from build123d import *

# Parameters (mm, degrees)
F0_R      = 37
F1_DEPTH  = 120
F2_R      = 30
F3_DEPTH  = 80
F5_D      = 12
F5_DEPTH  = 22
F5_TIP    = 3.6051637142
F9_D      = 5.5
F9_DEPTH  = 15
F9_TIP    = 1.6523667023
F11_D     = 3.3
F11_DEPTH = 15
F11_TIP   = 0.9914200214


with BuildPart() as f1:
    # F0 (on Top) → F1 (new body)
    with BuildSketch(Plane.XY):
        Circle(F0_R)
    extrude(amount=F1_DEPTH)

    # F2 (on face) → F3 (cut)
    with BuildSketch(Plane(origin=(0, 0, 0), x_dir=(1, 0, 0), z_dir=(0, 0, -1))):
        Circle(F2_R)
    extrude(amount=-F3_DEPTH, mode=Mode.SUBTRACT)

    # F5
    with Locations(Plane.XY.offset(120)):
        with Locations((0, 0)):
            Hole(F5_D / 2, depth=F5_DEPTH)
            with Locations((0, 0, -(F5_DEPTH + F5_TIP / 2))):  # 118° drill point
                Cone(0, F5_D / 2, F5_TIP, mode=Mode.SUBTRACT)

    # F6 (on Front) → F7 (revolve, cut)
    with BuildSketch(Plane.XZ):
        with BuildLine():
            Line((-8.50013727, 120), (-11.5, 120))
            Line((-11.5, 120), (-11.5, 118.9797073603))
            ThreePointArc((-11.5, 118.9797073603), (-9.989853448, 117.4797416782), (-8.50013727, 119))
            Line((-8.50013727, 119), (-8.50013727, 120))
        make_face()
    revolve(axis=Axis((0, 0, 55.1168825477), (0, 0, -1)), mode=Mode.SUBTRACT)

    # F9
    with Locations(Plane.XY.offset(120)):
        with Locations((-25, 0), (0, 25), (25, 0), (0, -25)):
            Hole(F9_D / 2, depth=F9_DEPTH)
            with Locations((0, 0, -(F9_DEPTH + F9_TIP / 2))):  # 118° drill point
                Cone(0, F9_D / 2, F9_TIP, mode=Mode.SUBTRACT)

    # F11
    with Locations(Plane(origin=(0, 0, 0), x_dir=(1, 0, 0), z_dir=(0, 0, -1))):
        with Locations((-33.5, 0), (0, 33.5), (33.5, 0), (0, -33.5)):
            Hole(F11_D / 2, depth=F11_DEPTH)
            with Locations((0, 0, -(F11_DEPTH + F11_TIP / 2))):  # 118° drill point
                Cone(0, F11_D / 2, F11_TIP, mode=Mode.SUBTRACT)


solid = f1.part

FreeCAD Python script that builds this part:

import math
import FreeCAD as App
import Part
import Sketcher
from FreeCAD import Vector

doc = App.newDocument("Part")
params = doc.addObject("Spreadsheet::Sheet", "Params")
for row, (alias, value) in enumerate([
    ("sketch1_diameter", "74 mm"),
    ("pad1_length", "120 mm"),
    ("sketch2_diameter", "60 mm"),
    ("pocket1_length", "80 mm"),
    ("sketch3_diameter", "12 mm"),
    ("hole_diameter", "12 mm"),
    ("hole_depth", "22 mm"),
    ("sketch4_radius", "1.5 mm"),
    ("sketch4_height", "1 mm"),
    ("groove_angle", "360 deg"),
    ("sketch5_diameter", "5.5 mm"),
    ("hole2_diameter", "5.5 mm"),
    ("hole2_depth", "15 mm"),
    ("sketch6_diameter", "3.3 mm"),
    ("hole3_diameter", "3.3 mm"),
    ("hole3_depth", "15 mm"),
], start=1):
    params.set(f"A{row}", alias)
    params.set(f"B{row}", "=" + value)
    params.setAlias(f"B{row}", alias)

body = doc.addObject("PartDesign::Body", "Body")

# Sketch on XY plane
sketch1 = body.newObject("Sketcher::SketchObject", "Sketch")
sketch1.AttachmentSupport = (doc.getObject("XY_Plane"), [""])
sketch1.MapMode = "FlatFace"
sketch1.addGeometry(Part.Circle(Vector(0, 0, 0), Vector(0, 0, 1), 37), False)
sketch1.addConstraint(Sketcher.Constraint("Coincident", 0, 3, -1, 1))
sketch1.addConstraint(Sketcher.Constraint("Diameter", 0, 74.0))
sketch1.setExpression("Constraints[1]", "Params.sketch1_diameter")
pad1 = body.newObject("PartDesign::Pad", "Pad")
pad1.Profile = sketch1
pad1.setExpression("Length", "Params.pad1_length")

# Sketch on XY plane
sketch2 = body.newObject("Sketcher::SketchObject", "Sketch001")
sketch2.AttachmentSupport = (doc.getObject("XY_Plane"), [""])
sketch2.MapMode = "FlatFace"
sketch2.addGeometry(Part.Circle(Vector(0, 0, 0), Vector(0, 0, 1), 30), False)
sketch2.addConstraint(Sketcher.Constraint("Coincident", 0, 3, -1, 1))
sketch2.addConstraint(Sketcher.Constraint("Diameter", 0, 60.0))
sketch2.setExpression("Constraints[1]", "Params.sketch2_diameter")
pocket1 = body.newObject("PartDesign::Pocket", "Pocket")
pocket1.Profile = sketch2
pocket1.setExpression("Length", "Params.pocket1_length")
pocket1.Reversed = True

# Sketch on XY plane
sketch3 = body.newObject("Sketcher::SketchObject", "Sketch002")
sketch3.AttachmentSupport = (doc.getObject("XY_Plane"), [""])
sketch3.MapMode = "FlatFace"
sketch3.AttachmentOffset = App.Placement(Vector(0, 0, 120), App.Rotation())
sketch3.addGeometry(Part.Circle(Vector(0, 0, 0), Vector(0, 0, 1), 6), False)
sketch3.addConstraint(Sketcher.Constraint("Coincident", 0, 3, -1, 1))
sketch3.addConstraint(Sketcher.Constraint("Diameter", 0, 12.0))
sketch3.setExpression("Constraints[1]", "Params.sketch3_diameter")
doc.recompute()
hole = body.newObject("PartDesign::Hole", "Hole")
hole.Profile = sketch3
hole.ThreadType = "None"
hole.setExpression("Diameter", "Params.hole_diameter")
hole.DepthType = "Dimension"
hole.setExpression("Depth", "Params.hole_depth")
hole.DrillPoint = "Angled"
hole.DrillPointAngle = 118

# Sketch on XZ plane
sketch4 = body.newObject("Sketcher::SketchObject", "Sketch003")
sketch4.AttachmentSupport = (doc.getObject("XZ_Plane"), [""])
sketch4.MapMode = "FlatFace"
sketch4.addGeometry(Part.LineSegment(Vector(-8.500137, 120, 0), Vector(-11.5, 120, 0)), False)
sketch4.addGeometry(Part.LineSegment(Vector(-11.5, 120, 0), Vector(-11.5, 118.979707, 0)), False)
sketch4.addGeometry(Part.ArcOfCircle(Part.Circle(Vector(-10, 118.979707, 0), Vector(0, 0, 1), 1.5), math.radians(180), math.radians(360.775145)), False)
sketch4.addGeometry(Part.LineSegment(Vector(-8.500137, 119, 0), Vector(-8.500137, 120, 0)), False)
sketch4.addConstraint(Sketcher.Constraint("Coincident", 0, 2, 1, 1))
sketch4.addConstraint(Sketcher.Constraint("Tangent", 1, 2, 2, 1))
sketch4.addConstraint(Sketcher.Constraint("Coincident", 2, 2, 3, 1))
sketch4.addConstraint(Sketcher.Constraint("Coincident", 3, 2, 0, 1))
sketch4.addConstraint(Sketcher.Constraint("Horizontal", 0))
sketch4.addConstraint(Sketcher.Constraint("Vertical", 1))
sketch4.addConstraint(Sketcher.Constraint("Vertical", 3))
sketch4.addConstraint(Sketcher.Constraint("Radius", 2, 1.5))
sketch4.addConstraint(Sketcher.Constraint("DistanceY", 3, 1, 3, 2, 1.0))
sketch4.addConstraint(Sketcher.Constraint("DistanceX", 2, 3, -1, 1, 10.0))
sketch4.addConstraint(Sketcher.Constraint("DistanceY", -1, 1, 0, 2, 120.0))
sketch4.addConstraint(Sketcher.Constraint("DistanceX", 0, 2, 0, 1, 2.999863))
sketch4.setExpression("Constraints[7]", "Params.sketch4_radius")
sketch4.setExpression("Constraints[8]", "Params.sketch4_height")
groove = body.newObject("PartDesign::Groove", "Groove")
groove.Profile = sketch4
groove.ReferenceAxis = (sketch4, ["V_Axis"])
groove.setExpression("Angle", "Params.groove_angle")

# Sketch on XY plane
sketch5 = body.newObject("Sketcher::SketchObject", "Sketch004")
sketch5.AttachmentSupport = (doc.getObject("XY_Plane"), [""])
sketch5.MapMode = "FlatFace"
sketch5.AttachmentOffset = App.Placement(Vector(0, 0, 120), App.Rotation())
sketch5.addGeometry(Part.Circle(Vector(-25, 0, 0), Vector(0, 0, 1), 2.8), False)
sketch5.addGeometry(Part.Circle(Vector(0, 25, 0), Vector(0, 0, 1), 2.8), False)
sketch5.addGeometry(Part.Circle(Vector(25, 0, 0), Vector(0, 0, 1), 2.8), False)
sketch5.addGeometry(Part.Circle(Vector(0, -25, 0), Vector(0, 0, 1), 2.8), False)
sketch5.addConstraint(Sketcher.Constraint("Equal", 0, 1))
sketch5.addConstraint(Sketcher.Constraint("Equal", 1, 2))
sketch5.addConstraint(Sketcher.Constraint("Equal", 2, 3))
sketch5.addConstraint(Sketcher.Constraint("Symmetric", 0, 3, 2, 3, -1, 1))
sketch5.addConstraint(Sketcher.Constraint("Symmetric", 1, 3, 3, 3, -1, 1))
sketch5.addConstraint(Sketcher.Constraint("PointOnObject", 0, 3, -1))
sketch5.addConstraint(Sketcher.Constraint("PointOnObject", 1, 3, -2))
sketch5.addConstraint(Sketcher.Constraint("Diameter", 0, 5.5))
sketch5.addConstraint(Sketcher.Constraint("DistanceX", 0, 3, -1, 1, 25.0))
sketch5.addConstraint(Sketcher.Constraint("DistanceY", -1, 1, 1, 3, 25.0))
sketch5.setExpression("Constraints[7]", "Params.sketch5_diameter")
doc.recompute()
hole2 = body.newObject("PartDesign::Hole", "Hole001")
hole2.Profile = sketch5
hole2.ThreadType = "None"
hole2.setExpression("Diameter", "Params.hole2_diameter")
hole2.DepthType = "Dimension"
hole2.setExpression("Depth", "Params.hole2_depth")
hole2.DrillPoint = "Angled"
hole2.DrillPointAngle = 118

# Sketch on XY plane
sketch6 = body.newObject("Sketcher::SketchObject", "Sketch005")
sketch6.AttachmentSupport = (doc.getObject("XY_Plane"), [""])
sketch6.MapMode = "FlatFace"
sketch6.addGeometry(Part.Circle(Vector(-33.5, 0, 0), Vector(0, 0, 1), 1.6), False)
sketch6.addGeometry(Part.Circle(Vector(0, -33.5, 0), Vector(0, 0, 1), 1.6), False)
sketch6.addGeometry(Part.Circle(Vector(33.5, 0, 0), Vector(0, 0, 1), 1.6), False)
sketch6.addGeometry(Part.Circle(Vector(0, 33.5, 0), Vector(0, 0, 1), 1.6), False)
sketch6.addConstraint(Sketcher.Constraint("Equal", 0, 1))
sketch6.addConstraint(Sketcher.Constraint("Equal", 1, 2))
sketch6.addConstraint(Sketcher.Constraint("Equal", 2, 3))
sketch6.addConstraint(Sketcher.Constraint("Symmetric", 0, 3, 2, 3, -1, 1))
sketch6.addConstraint(Sketcher.Constraint("Symmetric", 1, 3, 3, 3, -1, 1))
sketch6.addConstraint(Sketcher.Constraint("PointOnObject", 0, 3, -1))
sketch6.addConstraint(Sketcher.Constraint("PointOnObject", 1, 3, -2))
sketch6.addConstraint(Sketcher.Constraint("Diameter", 0, 3.3))
sketch6.addConstraint(Sketcher.Constraint("DistanceX", 0, 3, 2, 3, 67.0))
sketch6.addConstraint(Sketcher.Constraint("DistanceY", 1, 3, 3, 3, 67.0))
sketch6.setExpression("Constraints[7]", "Params.sketch6_diameter")
doc.recompute()
hole3 = body.newObject("PartDesign::Hole", "Hole002")
hole3.Profile = sketch6
hole3.ThreadType = "None"
hole3.setExpression("Diameter", "Params.hole3_diameter")
hole3.DepthType = "Dimension"
hole3.setExpression("Depth", "Params.hole3_depth")
hole3.DrillPoint = "Angled"
hole3.DrillPointAngle = 118
hole3.Reversed = True

doc.recompute()
